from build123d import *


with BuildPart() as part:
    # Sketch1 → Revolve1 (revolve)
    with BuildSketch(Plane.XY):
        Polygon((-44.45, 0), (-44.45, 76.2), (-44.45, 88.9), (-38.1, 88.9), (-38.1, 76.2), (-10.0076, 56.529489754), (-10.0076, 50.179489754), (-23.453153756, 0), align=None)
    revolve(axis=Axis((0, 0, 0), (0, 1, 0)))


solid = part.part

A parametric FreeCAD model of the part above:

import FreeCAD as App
import Part
import Sketcher

V = App.Vector
Q = App.Units.Quantity

doc = App.newDocument("Part")
params = doc.addObject("Spreadsheet::Sheet", "Params")
for row, (alias, value) in enumerate([
    ("sketch1_height", "3.5 in"),
    ("sketch1_height2", "0.5 in"),
    ("sketch1_width", "0.25 in"),
    ("revolution_angle", "360 deg"),
], start=1):
    params.set(f"A{row}", alias)
    params.set(f"B{row}", "=" + value)
    params.setAlias(f"B{row}", alias)

body = doc.addObject("PartDesign::Body", "Body")

sketch1 = doc.addObject("Sketcher::SketchObject", "Sketch")
body.addObject(sketch1)
sketch1.AttachmentSupport = (doc.XY_Plane, [""])
sketch1.MapMode = "FlatFace"
sketch1.addGeometry([
    Part.LineSegment(V(-44, 89, 0), V(-44, 0, 0)),
    Part.LineSegment(V(-44, 0, 0), V(-23, 0, 0)),
    Part.LineSegment(V(-23, 0, 0), V(-10, 50, 0)),
    Part.LineSegment(V(-10, 50, 0), V(-10, 57, 0)),
    Part.LineSegment(V(-10, 57, 0), V(-38, 76, 0)),
    Part.LineSegment(V(-38, 76, 0), V(-38, 89, 0)),
    Part.LineSegment(V(-38, 89, 0), V(-44, 89, 0)),
], False)
sketch1.addConstraint([
    Sketcher.Constraint("Coincident", 0, 2, 1, 1),
    Sketcher.Constraint("Coincident", 1, 2, 2, 1),
    Sketcher.Constraint("Coincident", 2, 2, 3, 1),
    Sketcher.Constraint("Coincident", 3, 2, 4, 1),
    Sketcher.Constraint("Coincident", 4, 2, 5, 1),
    Sketcher.Constraint("Coincident", 5, 2, 6, 1),
    Sketcher.Constraint("Coincident", 6, 2, 0, 1),
    Sketcher.Constraint("Vertical", 0),
    Sketcher.Constraint("Horizontal", 1),
    Sketcher.Constraint("Vertical", 3),
    Sketcher.Constraint("Vertical", 5),
    Sketcher.Constraint("Horizontal", 6),
    Sketcher.Constraint("PointOnObject", 0, 2, -1),
    Sketcher.Constraint("Equal", 6, 3),
    Sketcher.Constraint("DistanceY", 0, 2, 0, 1, Q("3.5 in")),
    Sketcher.Constraint("DistanceY", 5, 1, 5, 2, Q("0.5 in")),
    Sketcher.Constraint("Angle", 2, Q("75 deg")),
    Sketcher.Constraint("Angle", 4, Q("145 deg")),
    Sketcher.Constraint("DistanceX", 6, 2, 6, 1, Q("0.25 in")),
    Sketcher.Constraint("DistanceX", 4, 2, -1, 1, Q("1.5 in")),
    Sketcher.Constraint("DistanceX", 2, 2, -1, 1, Q("0.394 in")),
])
sketch1.setExpression("Constraints[14]", "Params.sketch1_height")
sketch1.setExpression("Constraints[15]", "Params.sketch1_height2")
sketch1.setExpression("Constraints[18]", "Params.sketch1_width")
revolution = doc.addObject("PartDesign::Revolution", "Revolution")
body.addObject(revolution)
revolution.Profile = sketch1
revolution.ReferenceAxis = (sketch1, ["V_Axis"])
revolution.setExpression("Angle", "Params.revolution_angle")

doc.recompute()
